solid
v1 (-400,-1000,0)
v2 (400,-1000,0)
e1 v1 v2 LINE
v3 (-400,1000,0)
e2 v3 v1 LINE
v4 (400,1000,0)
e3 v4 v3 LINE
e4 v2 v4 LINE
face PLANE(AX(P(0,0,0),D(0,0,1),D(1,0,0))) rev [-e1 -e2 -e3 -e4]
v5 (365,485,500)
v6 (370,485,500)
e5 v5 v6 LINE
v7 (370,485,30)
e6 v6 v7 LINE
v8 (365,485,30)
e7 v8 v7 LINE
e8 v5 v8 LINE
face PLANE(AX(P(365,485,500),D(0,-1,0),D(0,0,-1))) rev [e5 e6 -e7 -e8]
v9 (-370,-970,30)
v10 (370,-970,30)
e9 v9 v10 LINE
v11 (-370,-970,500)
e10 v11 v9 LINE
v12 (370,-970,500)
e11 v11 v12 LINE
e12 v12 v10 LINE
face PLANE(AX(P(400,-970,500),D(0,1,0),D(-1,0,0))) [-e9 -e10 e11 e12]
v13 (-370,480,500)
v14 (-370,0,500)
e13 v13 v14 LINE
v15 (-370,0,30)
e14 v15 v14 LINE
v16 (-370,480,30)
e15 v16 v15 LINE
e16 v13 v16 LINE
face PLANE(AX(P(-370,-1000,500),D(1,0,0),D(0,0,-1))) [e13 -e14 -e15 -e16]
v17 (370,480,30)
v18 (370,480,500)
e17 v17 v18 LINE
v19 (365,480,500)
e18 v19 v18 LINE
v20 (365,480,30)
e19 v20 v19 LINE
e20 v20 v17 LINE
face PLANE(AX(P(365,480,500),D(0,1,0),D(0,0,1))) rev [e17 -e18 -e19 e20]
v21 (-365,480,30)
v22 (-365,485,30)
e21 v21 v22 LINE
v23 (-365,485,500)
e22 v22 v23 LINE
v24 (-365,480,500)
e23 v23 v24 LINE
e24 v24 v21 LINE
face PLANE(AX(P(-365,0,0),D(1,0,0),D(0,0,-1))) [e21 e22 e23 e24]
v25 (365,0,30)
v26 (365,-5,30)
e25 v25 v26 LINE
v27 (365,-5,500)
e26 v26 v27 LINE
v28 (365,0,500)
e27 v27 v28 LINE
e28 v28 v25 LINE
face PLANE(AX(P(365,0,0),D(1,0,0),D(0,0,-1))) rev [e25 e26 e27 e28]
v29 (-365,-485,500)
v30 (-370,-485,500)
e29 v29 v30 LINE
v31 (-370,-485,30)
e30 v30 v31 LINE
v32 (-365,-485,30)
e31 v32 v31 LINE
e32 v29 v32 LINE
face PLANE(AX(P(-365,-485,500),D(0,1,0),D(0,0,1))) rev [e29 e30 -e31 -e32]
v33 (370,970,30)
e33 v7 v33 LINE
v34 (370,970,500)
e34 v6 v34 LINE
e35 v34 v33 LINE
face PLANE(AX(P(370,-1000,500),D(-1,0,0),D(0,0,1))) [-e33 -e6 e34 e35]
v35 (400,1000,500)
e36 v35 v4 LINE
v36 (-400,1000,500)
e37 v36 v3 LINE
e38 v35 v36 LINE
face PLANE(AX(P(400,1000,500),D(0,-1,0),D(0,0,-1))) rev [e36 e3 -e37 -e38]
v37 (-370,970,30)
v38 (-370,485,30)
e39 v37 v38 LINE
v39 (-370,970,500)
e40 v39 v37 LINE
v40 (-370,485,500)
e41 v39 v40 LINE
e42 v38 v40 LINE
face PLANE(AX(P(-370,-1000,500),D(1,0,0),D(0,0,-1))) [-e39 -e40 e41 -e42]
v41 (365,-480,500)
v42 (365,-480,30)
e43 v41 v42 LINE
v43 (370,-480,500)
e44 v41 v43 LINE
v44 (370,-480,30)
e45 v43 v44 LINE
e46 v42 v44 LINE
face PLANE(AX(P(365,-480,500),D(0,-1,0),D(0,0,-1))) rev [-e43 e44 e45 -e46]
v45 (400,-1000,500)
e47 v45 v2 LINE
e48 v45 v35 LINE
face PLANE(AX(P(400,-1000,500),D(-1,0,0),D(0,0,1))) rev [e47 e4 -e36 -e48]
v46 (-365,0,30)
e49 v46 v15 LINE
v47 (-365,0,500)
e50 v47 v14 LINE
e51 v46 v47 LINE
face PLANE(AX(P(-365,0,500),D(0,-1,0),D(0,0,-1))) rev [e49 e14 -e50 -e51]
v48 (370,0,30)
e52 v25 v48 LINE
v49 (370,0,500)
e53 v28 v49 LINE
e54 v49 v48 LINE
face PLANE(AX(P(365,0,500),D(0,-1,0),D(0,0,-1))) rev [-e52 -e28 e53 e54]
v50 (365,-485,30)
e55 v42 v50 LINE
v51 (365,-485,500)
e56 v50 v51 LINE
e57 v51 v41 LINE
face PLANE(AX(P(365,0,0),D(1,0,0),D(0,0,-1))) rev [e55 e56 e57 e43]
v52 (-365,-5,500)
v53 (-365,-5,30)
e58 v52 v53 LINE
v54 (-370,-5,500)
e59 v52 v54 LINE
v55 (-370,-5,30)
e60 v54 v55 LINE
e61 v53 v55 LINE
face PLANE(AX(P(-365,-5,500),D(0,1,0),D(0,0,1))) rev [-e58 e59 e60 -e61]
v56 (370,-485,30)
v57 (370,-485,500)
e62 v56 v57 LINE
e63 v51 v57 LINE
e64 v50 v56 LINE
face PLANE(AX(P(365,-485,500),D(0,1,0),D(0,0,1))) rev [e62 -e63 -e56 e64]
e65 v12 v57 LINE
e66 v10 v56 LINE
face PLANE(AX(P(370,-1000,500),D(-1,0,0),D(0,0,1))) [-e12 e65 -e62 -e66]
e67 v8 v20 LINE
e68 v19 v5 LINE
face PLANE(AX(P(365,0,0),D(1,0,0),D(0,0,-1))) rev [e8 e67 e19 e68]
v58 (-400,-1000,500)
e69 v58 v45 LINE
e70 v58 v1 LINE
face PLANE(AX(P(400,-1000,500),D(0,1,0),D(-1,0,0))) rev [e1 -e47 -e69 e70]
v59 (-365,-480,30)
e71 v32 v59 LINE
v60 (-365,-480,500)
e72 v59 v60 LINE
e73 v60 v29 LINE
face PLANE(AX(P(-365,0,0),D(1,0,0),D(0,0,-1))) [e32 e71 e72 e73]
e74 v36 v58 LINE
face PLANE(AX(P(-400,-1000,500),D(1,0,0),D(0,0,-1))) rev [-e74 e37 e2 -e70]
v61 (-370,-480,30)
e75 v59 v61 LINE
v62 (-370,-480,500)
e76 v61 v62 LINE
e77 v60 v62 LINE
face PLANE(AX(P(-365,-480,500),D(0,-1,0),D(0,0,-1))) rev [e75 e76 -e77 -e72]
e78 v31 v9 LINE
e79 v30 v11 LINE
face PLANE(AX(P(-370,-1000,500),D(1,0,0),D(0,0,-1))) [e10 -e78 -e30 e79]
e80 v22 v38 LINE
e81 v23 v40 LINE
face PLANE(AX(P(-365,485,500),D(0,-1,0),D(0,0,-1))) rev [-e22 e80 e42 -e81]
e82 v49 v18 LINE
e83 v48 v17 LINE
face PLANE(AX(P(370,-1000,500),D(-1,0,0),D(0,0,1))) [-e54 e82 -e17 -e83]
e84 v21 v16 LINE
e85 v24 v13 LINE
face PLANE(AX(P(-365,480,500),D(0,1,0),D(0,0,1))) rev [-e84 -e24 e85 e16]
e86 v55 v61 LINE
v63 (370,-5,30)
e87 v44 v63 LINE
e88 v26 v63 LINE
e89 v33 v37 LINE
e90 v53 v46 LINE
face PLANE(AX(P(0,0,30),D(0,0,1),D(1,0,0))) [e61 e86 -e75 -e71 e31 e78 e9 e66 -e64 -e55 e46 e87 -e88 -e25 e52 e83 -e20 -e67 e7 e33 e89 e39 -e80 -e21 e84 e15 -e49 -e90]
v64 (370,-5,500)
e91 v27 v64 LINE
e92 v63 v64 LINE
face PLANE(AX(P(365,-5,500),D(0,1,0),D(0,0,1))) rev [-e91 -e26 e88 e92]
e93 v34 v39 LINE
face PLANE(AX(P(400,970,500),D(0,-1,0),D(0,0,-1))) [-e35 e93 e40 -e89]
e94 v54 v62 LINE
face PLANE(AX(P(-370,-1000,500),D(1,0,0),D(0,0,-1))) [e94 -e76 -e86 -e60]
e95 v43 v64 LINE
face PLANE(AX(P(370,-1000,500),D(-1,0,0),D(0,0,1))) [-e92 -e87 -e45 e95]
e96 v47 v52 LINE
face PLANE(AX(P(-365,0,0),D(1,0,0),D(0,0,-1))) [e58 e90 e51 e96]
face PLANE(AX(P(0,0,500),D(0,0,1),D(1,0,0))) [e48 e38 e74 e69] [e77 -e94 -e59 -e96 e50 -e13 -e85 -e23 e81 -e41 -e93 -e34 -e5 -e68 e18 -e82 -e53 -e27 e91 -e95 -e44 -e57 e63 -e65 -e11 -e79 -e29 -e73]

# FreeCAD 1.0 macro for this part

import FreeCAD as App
import Part
import Sketcher
from FreeCAD import Vector
Q = App.Units.Quantity


def faces_at(feature, points):
    """Names of the faces that lie closest to the given points."""
    faces = feature.Shape.Faces
    near = lambda p: min(range(len(faces)), key=lambda i: faces[i].distToShape(Part.Vertex(*p))[0])
    return sorted({f"Face{near(p) + 1}" for p in points})


def add_polygon(sketch, points):
    """Adds a closed chain of lines whose ends are joined by coincident constraints."""
    first, n = sketch.GeometryCount, len(points)
    for a, b in zip(points, points[1:] + points[:1]):
        sketch.addGeometry(Part.LineSegment(App.Vector(*a, 0), App.Vector(*b, 0)), False)
    for i in range(n):
        sketch.addConstraint(Sketcher.Constraint("Coincident", first + i, 2, first + (i + 1) % n, 1))

doc = App.newDocument("Part")
body = doc.addObject("PartDesign::Body", "Body")

# Sketch on XY plane
sketch1 = body.newObject("Sketcher::SketchObject", "Sketch")
sketch1.AttachmentSupport = (doc.getObject("XY_Plane"), [""])
sketch1.MapMode = "FlatFace"
add_polygon(sketch1, [(-400, 1000), (-400, -1000), (400, -1000), (400, 1000)])  # lines 0-3
sketch1.addConstraint(Sketcher.Constraint("Vertical", 0))
sketch1.addConstraint(Sketcher.Constraint("Horizontal", 1))
sketch1.addConstraint(Sketcher.Constraint("Vertical", 2))
sketch1.addConstraint(Sketcher.Constraint("Horizontal", 3))
sketch1.addConstraint(Sketcher.Constraint("Symmetric", 0, 2, 2, 2, -1, 1))
sketch1.addConstraint(Sketcher.Constraint("DistanceX", 1, 1, 1, 2, Q("800 mm")))
sketch1.addConstraint(Sketcher.Constraint("DistanceY", 0, 2, 0, 1, Q("2000 mm")))
pad1 = body.newObject("PartDesign::Pad", "Pad")
pad1.Profile = sketch1
pad1.Length = 500
doc.recompute()

thickness = body.newObject("PartDesign::Thickness", "Thickness")
thickness.Base = (pad1, faces_at(pad1, [(0, 0, 500)]))
thickness.Value = 30
thickness.Reversed = True
thickness.Join = "Intersection"

# Sketch on YZ plane
sketch2 = body.newObject("Sketcher::SketchObject", "Sketch001")
sketch2.AttachmentSupport = (doc.getObject("YZ_Plane"), [""])
sketch2.MapMode = "FlatFace"
sketch2.AttachmentOffset = App.Placement(Vector(0, 0, 370), App.Rotation())
add_polygon(sketch2, [(485, 30), (480, 30), (480, 500), (485, 500)])  # lines 0-3
sketch2.addConstraint(Sketcher.Constraint("Horizontal", 0))
sketch2.addConstraint(Sketcher.Constraint("Vertical", 1))
sketch2.addConstraint(Sketcher.Constraint("Horizontal", 2))
sketch2.addConstraint(Sketcher.Constraint("Vertical", 3))
sketch2.addConstraint(Sketcher.Constraint("DistanceX", 0, 2, 0, 1, Q("5 mm")))
sketch2.addConstraint(Sketcher.Constraint("DistanceY", 1, 1, 1, 2, Q("470 mm")))
sketch2.addConstraint(Sketcher.Constraint("DistanceX", -1, 1, 0, 2, Q("480 mm")))
sketch2.addConstraint(Sketcher.Constraint("DistanceY", -1, 1, 0, 2, Q("30 mm")))
pad2 = body.newObject("PartDesign::Pad", "Pad001")
pad2.Profile = sketch2
pad2.Length = 5
pad2.Reversed = True

# Sketch on YZ plane
sketch3 = body.newObject("Sketcher::SketchObject", "Sketch002")
sketch3.AttachmentSupport = (doc.getObject("YZ_Plane"), [""])
sketch3.MapMode = "FlatFace"
sketch3.AttachmentOffset = App.Placement(Vector(0, 0, -370), App.Rotation())
add_polygon(sketch3, [(485, 500), (480, 500), (480, 30), (485, 30)])  # lines 0-3
sketch3.addConstraint(Sketcher.Constraint("Horizontal", 0))
sketch3.addConstraint(Sketcher.Constraint("Vertical", 1))
sketch3.addConstraint(Sketcher.Constraint("Horizontal", 2))
sketch3.addConstraint(Sketcher.Constraint("Vertical", 3))
sketch3.addConstraint(Sketcher.Constraint("DistanceX", 0, 2, 0, 1, Q("5 mm")))
sketch3.addConstraint(Sketcher.Constraint("DistanceY", 1, 2, 1, 1, Q("470 mm")))
sketch3.addConstraint(Sketcher.Constraint("DistanceX", -1, 1, 0, 2, Q("480 mm")))
sketch3.addConstraint(Sketcher.Constraint("DistanceY", -1, 1, 0, 2, Q("500 mm")))
pad3 = body.newObject("PartDesign::Pad", "Pad002")
pad3.Profile = sketch3
pad3.Length = 5

# Sketch on YZ plane
sketch4 = body.newObject("Sketcher::SketchObject", "Sketch003")
sketch4.AttachmentSupport = (doc.getObject("YZ_Plane"), [""])
sketch4.MapMode = "FlatFace"
sketch4.AttachmentOffset = App.Placement(Vector(0, 0, 370), App.Rotation())
add_polygon(sketch4, [(0, 30), (-5, 30), (-5, 500), (0, 500)])  # lines 0-3
sketch4.addConstraint(Sketcher.Constraint("Horizontal", 0))
sketch4.addConstraint(Sketcher.Constraint("Vertical", 1))
sketch4.addConstraint(Sketcher.Constraint("Horizontal", 2))
sketch4.addConstraint(Sketcher.Constraint("Vertical", 3))
sketch4.addConstraint(Sketcher.Constraint("PointOnObject", 2, 2, -2))
sketch4.addConstraint(Sketcher.Constraint("DistanceX", 0, 2, 0, 1, Q("5 mm")))
sketch4.addConstraint(Sketcher.Constraint("DistanceY", 1, 1, 1, 2, Q("470 mm")))
sketch4.addConstraint(Sketcher.Constraint("DistanceY", -1, 1, 0, 2, Q("30 mm")))
pad4 = body.newObject("PartDesign::Pad", "Pad003")
pad4.Profile = sketch4
pad4.Length = 5
pad4.Reversed = True

# Sketch on YZ plane
sketch5 = body.newObject("Sketcher::SketchObject", "Sketch004")
sketch5.AttachmentSupport = (doc.getObject("YZ_Plane"), [""])
sketch5.MapMode = "FlatFace"
sketch5.AttachmentOffset = App.Placement(Vector(0, 0, -370), App.Rotation())
add_polygon(sketch5, [(0, 500), (-5, 500), (-5, 30), (0, 30)])  # lines 0-3
sketch5.addConstraint(Sketcher.Constraint("Horizontal", 0))
sketch5.addConstraint(Sketcher.Constraint("Vertical", 1))
sketch5.addConstraint(Sketcher.Constraint("Horizontal", 2))
sketch5.addConstraint(Sketcher.Constraint("Vertical", 3))
sketch5.addConstraint(Sketcher.Constraint("PointOnObject", 2, 2, -2))
sketch5.addConstraint(Sketcher.Constraint("DistanceX", 0, 2, 0, 1, Q("5 mm")))
sketch5.addConstraint(Sketcher.Constraint("DistanceY", 1, 2, 1, 1, Q("470 mm")))
sketch5.addConstraint(Sketcher.Constraint("DistanceY", -1, 1, 0, 2, Q("500 mm")))
pad5 = body.newObject("PartDesign::Pad", "Pad004")
pad5.Profile = sketch5
pad5.Length = 5

# Sketch on YZ plane
sketch6 = body.newObject("Sketcher::SketchObject", "Sketch005")
sketch6.AttachmentSupport = (doc.getObject("YZ_Plane"), [""])
sketch6.MapMode = "FlatFace"
sketch6.AttachmentOffset = App.Placement(Vector(0, 0, 370), App.Rotation())
add_polygon(sketch6, [(-480, 30), (-485, 30), (-485, 500), (-480, 500)])  # lines 0-3
sketch6.addConstraint(Sketcher.Constraint("Horizontal", 0))
sketch6.addConstraint(Sketcher.Constraint("Vertical", 1))
sketch6.addConstraint(Sketcher.Constraint("Horizontal", 2))
sketch6.addConstraint(Sketcher.Constraint("Vertical", 3))
sketch6.addConstraint(Sketcher.Constraint("DistanceX", 0, 2, 0, 1, Q("5 mm")))
sketch6.addConstraint(Sketcher.Constraint("DistanceY", 1, 1, 1, 2, Q("470 mm")))
sketch6.addConstraint(Sketcher.Constraint("DistanceX", 0, 2, -1, 1, Q("485 mm")))
sketch6.addConstraint(Sketcher.Constraint("DistanceY", -1, 1, 0, 2, Q("30 mm")))
pad6 = body.newObject("PartDesign::Pad", "Pad005")
pad6.Profile = sketch6
pad6.Length = 5
pad6.Reversed = True

# Sketch on YZ plane
sketch7 = body.newObject("Sketcher::SketchObject", "Sketch006")
sketch7.AttachmentSupport = (doc.getObject("YZ_Plane"), [""])
sketch7.MapMode = "FlatFace"
sketch7.AttachmentOffset = App.Placement(Vector(0, 0, -370), App.Rotation())
add_polygon(sketch7, [(-480, 500), (-485, 500), (-485, 30), (-480, 30)])  # lines 0-3
sketch7.addConstraint(Sketcher.Constraint("Horizontal", 0))
sketch7.addConstraint(Sketcher.Constraint("Vertical", 1))
sketch7.addConstraint(Sketcher.Constraint("Horizontal", 2))
sketch7.addConstraint(Sketcher.Constraint("Vertical", 3))
sketch7.addConstraint(Sketcher.Constraint("DistanceX", 0, 2, 0, 1, Q("5 mm")))
sketch7.addConstraint(Sketcher.Constraint("DistanceY", 1, 2, 1, 1, Q("470 mm")))
sketch7.addConstraint(Sketcher.Constraint("DistanceX", 0, 2, -1, 1, Q("485 mm")))
sketch7.addConstraint(Sketcher.Constraint("DistanceY", -1, 1, 0, 2, Q("500 mm")))
pad7 = body.newObject("PartDesign::Pad", "Pad006")
pad7.Profile = sketch7
pad7.Length = 5

doc.recompute()
